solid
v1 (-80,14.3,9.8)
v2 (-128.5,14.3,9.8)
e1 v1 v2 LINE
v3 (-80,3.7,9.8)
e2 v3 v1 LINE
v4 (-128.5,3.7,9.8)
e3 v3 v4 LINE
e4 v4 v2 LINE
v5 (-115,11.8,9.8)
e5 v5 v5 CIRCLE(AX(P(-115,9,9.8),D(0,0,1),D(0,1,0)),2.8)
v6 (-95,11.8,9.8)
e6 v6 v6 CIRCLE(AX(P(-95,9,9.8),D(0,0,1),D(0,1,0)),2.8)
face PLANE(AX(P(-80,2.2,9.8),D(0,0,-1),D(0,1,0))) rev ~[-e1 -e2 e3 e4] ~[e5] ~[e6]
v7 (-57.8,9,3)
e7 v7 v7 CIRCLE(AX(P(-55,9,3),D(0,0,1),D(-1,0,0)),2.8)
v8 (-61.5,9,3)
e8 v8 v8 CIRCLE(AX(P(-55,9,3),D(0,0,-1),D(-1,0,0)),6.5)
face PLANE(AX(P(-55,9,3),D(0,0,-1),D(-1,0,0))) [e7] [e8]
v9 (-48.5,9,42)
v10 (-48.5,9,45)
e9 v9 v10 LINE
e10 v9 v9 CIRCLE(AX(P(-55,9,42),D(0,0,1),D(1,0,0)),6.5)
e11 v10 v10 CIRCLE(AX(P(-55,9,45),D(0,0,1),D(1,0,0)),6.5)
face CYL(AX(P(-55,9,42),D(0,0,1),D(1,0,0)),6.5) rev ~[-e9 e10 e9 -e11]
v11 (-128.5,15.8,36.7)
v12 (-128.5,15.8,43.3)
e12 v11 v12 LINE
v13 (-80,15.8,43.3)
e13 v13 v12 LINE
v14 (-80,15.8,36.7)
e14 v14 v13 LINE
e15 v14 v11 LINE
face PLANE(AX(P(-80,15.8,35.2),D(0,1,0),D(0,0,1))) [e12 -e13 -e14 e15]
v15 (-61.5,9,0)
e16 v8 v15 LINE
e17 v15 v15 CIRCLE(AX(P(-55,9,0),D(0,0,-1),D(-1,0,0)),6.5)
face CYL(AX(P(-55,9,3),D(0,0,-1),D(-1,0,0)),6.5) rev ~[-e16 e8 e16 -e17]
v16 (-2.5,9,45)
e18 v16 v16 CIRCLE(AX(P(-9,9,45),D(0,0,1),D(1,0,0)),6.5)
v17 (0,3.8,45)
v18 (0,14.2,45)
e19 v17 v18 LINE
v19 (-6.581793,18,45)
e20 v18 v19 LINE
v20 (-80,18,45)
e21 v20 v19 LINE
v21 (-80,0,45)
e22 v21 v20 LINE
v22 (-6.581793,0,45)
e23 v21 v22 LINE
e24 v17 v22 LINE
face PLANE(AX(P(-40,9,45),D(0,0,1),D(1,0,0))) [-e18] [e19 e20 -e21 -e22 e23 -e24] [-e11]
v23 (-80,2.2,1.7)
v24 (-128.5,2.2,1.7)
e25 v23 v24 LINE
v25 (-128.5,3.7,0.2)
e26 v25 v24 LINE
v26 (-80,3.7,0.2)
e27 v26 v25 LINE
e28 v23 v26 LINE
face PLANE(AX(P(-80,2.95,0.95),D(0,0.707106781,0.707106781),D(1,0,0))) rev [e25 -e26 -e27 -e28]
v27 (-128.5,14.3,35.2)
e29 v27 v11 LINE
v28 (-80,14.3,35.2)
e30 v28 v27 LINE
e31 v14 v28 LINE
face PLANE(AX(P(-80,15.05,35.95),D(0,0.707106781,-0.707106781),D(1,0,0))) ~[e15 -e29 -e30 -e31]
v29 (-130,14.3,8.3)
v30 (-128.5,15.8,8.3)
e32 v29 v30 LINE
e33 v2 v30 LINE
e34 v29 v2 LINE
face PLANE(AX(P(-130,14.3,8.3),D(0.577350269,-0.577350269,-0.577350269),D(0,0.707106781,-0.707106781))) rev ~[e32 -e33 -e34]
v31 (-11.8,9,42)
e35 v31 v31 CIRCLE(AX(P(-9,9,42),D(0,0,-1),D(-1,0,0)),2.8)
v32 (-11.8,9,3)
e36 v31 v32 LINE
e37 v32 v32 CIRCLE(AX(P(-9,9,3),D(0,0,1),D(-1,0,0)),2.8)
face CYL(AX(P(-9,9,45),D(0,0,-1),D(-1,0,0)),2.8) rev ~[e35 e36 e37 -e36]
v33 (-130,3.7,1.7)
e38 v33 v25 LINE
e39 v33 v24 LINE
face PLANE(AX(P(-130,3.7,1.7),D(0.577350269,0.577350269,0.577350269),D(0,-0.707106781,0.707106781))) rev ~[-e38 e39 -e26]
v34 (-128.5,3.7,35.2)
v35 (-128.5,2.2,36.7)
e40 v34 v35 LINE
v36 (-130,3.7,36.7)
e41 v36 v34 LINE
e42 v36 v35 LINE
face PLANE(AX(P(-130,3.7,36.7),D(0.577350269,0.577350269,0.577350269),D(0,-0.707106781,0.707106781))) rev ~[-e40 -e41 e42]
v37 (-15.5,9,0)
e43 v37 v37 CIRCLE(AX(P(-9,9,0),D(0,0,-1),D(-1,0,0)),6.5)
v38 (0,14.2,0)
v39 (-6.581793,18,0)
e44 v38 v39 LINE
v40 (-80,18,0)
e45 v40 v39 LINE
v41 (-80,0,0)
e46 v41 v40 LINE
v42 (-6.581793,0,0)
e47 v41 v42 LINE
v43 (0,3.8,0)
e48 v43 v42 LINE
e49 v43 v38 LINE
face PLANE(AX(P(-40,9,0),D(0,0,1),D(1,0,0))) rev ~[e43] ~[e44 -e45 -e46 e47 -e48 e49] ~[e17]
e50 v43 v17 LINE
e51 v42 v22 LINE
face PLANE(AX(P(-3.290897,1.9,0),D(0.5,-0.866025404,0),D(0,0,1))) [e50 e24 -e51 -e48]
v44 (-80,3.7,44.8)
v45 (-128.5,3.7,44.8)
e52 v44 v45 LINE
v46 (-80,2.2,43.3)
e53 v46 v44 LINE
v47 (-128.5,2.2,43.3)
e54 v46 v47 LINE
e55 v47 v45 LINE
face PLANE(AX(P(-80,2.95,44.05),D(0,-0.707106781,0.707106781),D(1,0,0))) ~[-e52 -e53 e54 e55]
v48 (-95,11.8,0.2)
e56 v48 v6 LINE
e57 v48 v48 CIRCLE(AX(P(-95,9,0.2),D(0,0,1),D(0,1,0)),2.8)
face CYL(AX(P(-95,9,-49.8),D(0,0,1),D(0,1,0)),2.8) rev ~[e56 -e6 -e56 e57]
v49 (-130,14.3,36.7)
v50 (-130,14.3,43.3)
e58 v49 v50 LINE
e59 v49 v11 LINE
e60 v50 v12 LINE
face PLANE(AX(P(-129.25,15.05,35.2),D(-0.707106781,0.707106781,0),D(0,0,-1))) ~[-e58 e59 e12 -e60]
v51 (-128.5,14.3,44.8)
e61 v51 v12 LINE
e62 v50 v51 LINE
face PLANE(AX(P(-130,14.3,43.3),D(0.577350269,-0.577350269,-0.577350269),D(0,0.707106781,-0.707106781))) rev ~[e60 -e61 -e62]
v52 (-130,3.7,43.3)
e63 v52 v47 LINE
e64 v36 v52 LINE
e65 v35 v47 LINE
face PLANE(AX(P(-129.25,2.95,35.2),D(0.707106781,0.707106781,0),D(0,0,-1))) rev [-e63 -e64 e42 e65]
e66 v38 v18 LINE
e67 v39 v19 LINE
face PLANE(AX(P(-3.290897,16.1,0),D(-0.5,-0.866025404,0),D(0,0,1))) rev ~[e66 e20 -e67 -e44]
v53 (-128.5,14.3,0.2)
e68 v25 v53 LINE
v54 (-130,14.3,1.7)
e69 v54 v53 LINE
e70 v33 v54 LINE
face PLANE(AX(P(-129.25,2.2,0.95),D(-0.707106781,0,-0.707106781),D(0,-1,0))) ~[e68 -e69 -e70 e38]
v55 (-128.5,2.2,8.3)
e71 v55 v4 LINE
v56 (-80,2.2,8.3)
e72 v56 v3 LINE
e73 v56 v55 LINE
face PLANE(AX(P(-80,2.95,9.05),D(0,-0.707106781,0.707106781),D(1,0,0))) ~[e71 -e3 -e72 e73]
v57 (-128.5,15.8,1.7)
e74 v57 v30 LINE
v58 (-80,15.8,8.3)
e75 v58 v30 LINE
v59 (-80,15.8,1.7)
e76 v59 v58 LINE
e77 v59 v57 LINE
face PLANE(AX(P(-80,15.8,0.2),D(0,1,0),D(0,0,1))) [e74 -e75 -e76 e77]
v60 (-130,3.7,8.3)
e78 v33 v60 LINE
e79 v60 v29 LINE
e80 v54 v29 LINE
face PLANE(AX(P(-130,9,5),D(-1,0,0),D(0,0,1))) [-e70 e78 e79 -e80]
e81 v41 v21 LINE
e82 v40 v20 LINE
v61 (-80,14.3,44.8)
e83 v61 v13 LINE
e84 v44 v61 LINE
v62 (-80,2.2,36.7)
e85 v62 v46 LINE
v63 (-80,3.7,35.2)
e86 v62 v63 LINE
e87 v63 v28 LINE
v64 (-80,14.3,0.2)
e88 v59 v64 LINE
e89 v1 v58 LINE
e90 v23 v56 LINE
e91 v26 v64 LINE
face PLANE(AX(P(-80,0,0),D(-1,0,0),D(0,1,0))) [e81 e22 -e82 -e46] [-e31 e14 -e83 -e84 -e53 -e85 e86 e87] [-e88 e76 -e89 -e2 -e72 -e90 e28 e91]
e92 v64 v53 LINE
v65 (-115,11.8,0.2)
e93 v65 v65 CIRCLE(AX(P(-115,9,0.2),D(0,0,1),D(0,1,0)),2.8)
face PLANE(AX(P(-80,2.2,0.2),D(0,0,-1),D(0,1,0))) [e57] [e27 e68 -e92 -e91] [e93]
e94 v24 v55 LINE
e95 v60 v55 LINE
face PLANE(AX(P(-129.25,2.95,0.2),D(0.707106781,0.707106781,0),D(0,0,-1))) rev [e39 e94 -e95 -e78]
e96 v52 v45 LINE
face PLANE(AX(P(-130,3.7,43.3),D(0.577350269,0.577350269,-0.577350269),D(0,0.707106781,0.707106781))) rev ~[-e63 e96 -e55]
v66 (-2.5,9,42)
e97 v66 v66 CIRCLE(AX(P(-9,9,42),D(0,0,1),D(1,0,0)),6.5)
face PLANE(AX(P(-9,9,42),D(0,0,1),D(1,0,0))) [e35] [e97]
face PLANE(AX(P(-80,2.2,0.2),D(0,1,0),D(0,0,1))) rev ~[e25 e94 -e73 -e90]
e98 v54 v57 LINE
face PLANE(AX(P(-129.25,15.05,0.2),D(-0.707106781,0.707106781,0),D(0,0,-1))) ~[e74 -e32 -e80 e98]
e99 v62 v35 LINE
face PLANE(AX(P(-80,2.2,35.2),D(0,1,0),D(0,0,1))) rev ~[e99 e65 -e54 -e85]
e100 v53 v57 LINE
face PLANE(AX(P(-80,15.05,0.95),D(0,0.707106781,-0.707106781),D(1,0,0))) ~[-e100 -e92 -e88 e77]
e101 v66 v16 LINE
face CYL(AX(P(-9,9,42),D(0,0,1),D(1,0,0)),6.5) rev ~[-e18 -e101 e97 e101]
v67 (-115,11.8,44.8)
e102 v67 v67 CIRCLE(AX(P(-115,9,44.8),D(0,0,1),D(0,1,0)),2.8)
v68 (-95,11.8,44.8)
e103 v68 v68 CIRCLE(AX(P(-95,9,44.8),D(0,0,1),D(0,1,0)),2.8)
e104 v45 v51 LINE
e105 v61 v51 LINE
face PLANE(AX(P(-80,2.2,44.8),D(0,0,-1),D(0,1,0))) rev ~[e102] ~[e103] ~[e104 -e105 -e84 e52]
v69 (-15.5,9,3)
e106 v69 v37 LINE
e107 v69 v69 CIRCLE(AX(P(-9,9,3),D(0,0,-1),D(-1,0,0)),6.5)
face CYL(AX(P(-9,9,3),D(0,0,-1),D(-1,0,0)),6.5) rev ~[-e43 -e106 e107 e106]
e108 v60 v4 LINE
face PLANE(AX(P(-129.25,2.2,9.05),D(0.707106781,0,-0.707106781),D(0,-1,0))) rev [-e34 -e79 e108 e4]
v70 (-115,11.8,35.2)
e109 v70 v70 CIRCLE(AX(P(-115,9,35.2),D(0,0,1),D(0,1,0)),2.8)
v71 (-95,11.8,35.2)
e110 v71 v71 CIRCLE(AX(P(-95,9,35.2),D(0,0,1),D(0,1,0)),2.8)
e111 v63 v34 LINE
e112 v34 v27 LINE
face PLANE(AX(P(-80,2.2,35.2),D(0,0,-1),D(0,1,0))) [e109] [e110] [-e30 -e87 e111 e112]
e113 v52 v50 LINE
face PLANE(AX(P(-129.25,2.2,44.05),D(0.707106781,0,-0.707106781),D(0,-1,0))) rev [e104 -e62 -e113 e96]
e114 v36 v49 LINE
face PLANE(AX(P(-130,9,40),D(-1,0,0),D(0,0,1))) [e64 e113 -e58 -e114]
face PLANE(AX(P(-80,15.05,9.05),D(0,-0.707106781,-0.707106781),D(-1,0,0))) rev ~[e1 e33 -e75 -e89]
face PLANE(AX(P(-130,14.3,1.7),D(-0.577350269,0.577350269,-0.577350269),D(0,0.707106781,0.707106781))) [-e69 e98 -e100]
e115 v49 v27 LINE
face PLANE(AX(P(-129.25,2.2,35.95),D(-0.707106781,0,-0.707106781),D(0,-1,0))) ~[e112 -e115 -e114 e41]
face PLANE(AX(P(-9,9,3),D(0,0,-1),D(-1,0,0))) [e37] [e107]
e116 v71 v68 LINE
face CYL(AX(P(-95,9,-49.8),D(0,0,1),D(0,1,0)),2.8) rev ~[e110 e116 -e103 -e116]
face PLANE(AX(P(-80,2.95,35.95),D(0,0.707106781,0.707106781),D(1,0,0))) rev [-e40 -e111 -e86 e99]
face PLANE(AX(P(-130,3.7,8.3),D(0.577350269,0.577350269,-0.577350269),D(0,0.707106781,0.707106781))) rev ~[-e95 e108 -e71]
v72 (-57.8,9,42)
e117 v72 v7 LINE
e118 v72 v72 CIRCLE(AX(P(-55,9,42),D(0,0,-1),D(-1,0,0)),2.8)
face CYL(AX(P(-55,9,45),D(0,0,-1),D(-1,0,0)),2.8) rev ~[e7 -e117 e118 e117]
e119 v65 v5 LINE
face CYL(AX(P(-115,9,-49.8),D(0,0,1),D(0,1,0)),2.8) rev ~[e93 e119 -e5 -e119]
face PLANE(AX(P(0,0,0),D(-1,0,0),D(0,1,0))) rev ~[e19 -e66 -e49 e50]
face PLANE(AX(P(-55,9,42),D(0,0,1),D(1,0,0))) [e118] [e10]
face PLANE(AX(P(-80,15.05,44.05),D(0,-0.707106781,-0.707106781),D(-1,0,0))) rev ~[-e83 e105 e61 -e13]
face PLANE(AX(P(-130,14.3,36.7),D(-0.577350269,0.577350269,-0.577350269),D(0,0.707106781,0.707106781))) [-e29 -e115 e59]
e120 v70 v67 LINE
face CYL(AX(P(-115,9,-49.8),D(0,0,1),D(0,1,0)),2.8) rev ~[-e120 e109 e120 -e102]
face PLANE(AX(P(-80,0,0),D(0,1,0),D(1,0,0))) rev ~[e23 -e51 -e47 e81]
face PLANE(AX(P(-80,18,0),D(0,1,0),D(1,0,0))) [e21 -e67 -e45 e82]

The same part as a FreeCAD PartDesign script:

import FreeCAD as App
import Part
import Sketcher
from FreeCAD import Vector


def edges_at(feature, points):
    """Names of the edges that pass closest to the given points."""
    edges = feature.Shape.Edges
    near = lambda p: min(range(len(edges)), key=lambda i: edges[i].distToShape(Part.Vertex(*p))[0])
    return sorted({f"Edge{near(p) + 1}" for p in points})


def add_polygon(sketch, points):
    """Adds a closed chain of lines whose ends are joined by coincident constraints."""
    first, n = sketch.GeometryCount, len(points)
    for a, b in zip(points, points[1:] + points[:1]):
        sketch.addGeometry(Part.LineSegment(App.Vector(*a, 0), App.Vector(*b, 0)), False)
    for i in range(n):
        sketch.addConstraint(Sketcher.Constraint("Coincident", first + i, 2, first + (i + 1) % n, 1))

doc = App.newDocument("Part")
body = doc.addObject("PartDesign::Body", "Body")

# Sketch on XY plane
sketch1 = body.newObject("Sketcher::SketchObject", "Sketch")
sketch1.AttachmentSupport = (doc.getObject("XY_Plane"), [""])
sketch1.MapMode = "FlatFace"
add_polygon(sketch1, [(-80, 18), (-80, 0), (0, 0), (0, 18)])  # lines 0-3
sketch1.addConstraint(Sketcher.Constraint("Vertical", 0))
sketch1.addConstraint(Sketcher.Constraint("Horizontal", 1))
sketch1.addConstraint(Sketcher.Constraint("Vertical", 2))
sketch1.addConstraint(Sketcher.Constraint("Horizontal", 3))
sketch1.addConstraint(Sketcher.Constraint("Coincident", 1, 2, -1, 1))
sketch1.addConstraint(Sketcher.Constraint("DistanceX", 1, 1, 1, 2, 80.0))
sketch1.addConstraint(Sketcher.Constraint("DistanceY", 0, 2, 0, 1, 18.0))
pad1 = body.newObject("PartDesign::Pad", "Pad")
pad1.Profile = sketch1
pad1.Length = 45
doc.recompute()

chamfer = body.newObject("PartDesign::Chamfer", "Chamfer")
chamfer.Base = (pad1, edges_at(pad1, [(0, 18, 22.5)]))
chamfer.ChamferType = "Two distances"
chamfer.Size = 3.8
chamfer.Size2 = 6.581793
doc.recompute()

chamfer2 = body.newObject("PartDesign::Chamfer", "Chamfer001")
chamfer2.Base = (chamfer, edges_at(chamfer, [(0, 0, 22.5)]))
chamfer2.ChamferType = "Two distances"
chamfer2.Size = 3.8
chamfer2.Size2 = 6.581793

# Sketch on YZ plane
sketch2 = body.newObject("Sketcher::SketchObject", "Sketch001")
sketch2.AttachmentSupport = (doc.getObject("YZ_Plane"), [""])
sketch2.MapMode = "FlatFace"
sketch2.AttachmentOffset = App.Placement(Vector(0, 0, -80), App.Rotation())
add_polygon(sketch2, [(16, 0), (2, 0), (2, 10), (16, 10)])  # lines 0-3
add_polygon(sketch2, [(16, 35), (2, 35), (2, 45), (16, 45)])  # lines 4-7
sketch2.addConstraint(Sketcher.Constraint("Horizontal", 0))
sketch2.addConstraint(Sketcher.Constraint("Vertical", 1))
sketch2.addConstraint(Sketcher.Constraint("Horizontal", 2))
sketch2.addConstraint(Sketcher.Constraint("Vertical", 3))
sketch2.addConstraint(Sketcher.Constraint("Horizontal", 4))
sketch2.addConstraint(Sketcher.Constraint("Vertical", 5))
sketch2.addConstraint(Sketcher.Constraint("Horizontal", 6))
sketch2.addConstraint(Sketcher.Constraint("Vertical", 7))
sketch2.addConstraint(Sketcher.Constraint("Vertical", 1, 2, 4, 2))
sketch2.addConstraint(Sketcher.Constraint("Vertical", 3, 2, 6, 2))
sketch2.addConstraint(Sketcher.Constraint("Equal", 3, 5))
sketch2.addConstraint(Sketcher.Constraint("DistanceX", 0, 2, 0, 1, 13.6))
sketch2.addConstraint(Sketcher.Constraint("DistanceY", 1, 1, 1, 2, 9.6))
sketch2.addConstraint(Sketcher.Constraint("DistanceY", 0, 2, 4, 2, 35.0))
sketch2.addConstraint(Sketcher.Constraint("DistanceX", -1, 1, 0, 2, 2.2))
sketch2.addConstraint(Sketcher.Constraint("DistanceY", -1, 1, 0, 2, 0.2))
pad2 = body.newObject("PartDesign::Pad", "Pad001")
pad2.Profile = sketch2
pad2.Length = 50
pad2.Reversed = True
doc.recompute()

chamfer3 = body.newObject("PartDesign::Chamfer", "Chamfer002")
chamfer3.Base = (pad2, edges_at(pad2, [
    (-105, 15.8, 0.2),
    (-105, 2.2, 0.2),
    (-105, 2.2, 9.8),
    (-105, 15.8, 9.8),
    (-130, 9, 0.2),
    (-130, 2.2, 5),
    (-130, 9, 9.8),
    (-130, 15.8, 5),
    (-105, 15.8, 35.2),
    (-105, 2.2, 35.2),
    (-105, 2.2, 44.8),
    (-105, 15.8, 44.8),
    (-130, 9, 35.2),
    (-130, 2.2, 40),
    (-130, 9, 44.8),
    (-130, 15.8, 40),
]))
chamfer3.Size = 1.5

# Sketch on XY plane
sketch3 = body.newObject("Sketcher::SketchObject", "Sketch002")
sketch3.AttachmentSupport = (doc.getObject("XY_Plane"), [""])
sketch3.MapMode = "FlatFace"
sketch3.AttachmentOffset = App.Placement(Vector(0, 0, 0.2), App.Rotation())
sketch3.addGeometry(Part.Circle(Vector(-115, 9, 0), Vector(0, 0, 1), 2.8), False)
sketch3.addGeometry(Part.Circle(Vector(-95, 9, 0), Vector(0, 0, 1), 2.8), False)
sketch3.addConstraint(Sketcher.Constraint("Equal", 0, 1))
sketch3.addConstraint(Sketcher.Constraint("Horizontal", 0, 3, 1, 3))
sketch3.addConstraint(Sketcher.Constraint("Diameter", 0, 5.6))
sketch3.addConstraint(Sketcher.Constraint("DistanceX", 0, 3, -1, 1, 115.0))
sketch3.addConstraint(Sketcher.Constraint("DistanceY", -1, 1, 0, 3, 9.0))
sketch3.addConstraint(Sketcher.Constraint("DistanceX", 1, 3, -1, 1, 95.0))
doc.recompute()
hole = body.newObject("PartDesign::Hole", "Hole")
hole.Profile = sketch3
hole.ThreadType = "None"
hole.Diameter = 5.6
hole.DepthType = "Dimension"
hole.Depth = 50
hole.DrillPoint = "Angled"
hole.DrillPointAngle = 118
hole.Reversed = True

# Sketch on XY plane
sketch4 = body.newObject("Sketcher::SketchObject", "Sketch003")
sketch4.AttachmentSupport = (doc.getObject("XY_Plane"), [""])
sketch4.MapMode = "FlatFace"
sketch4.AttachmentOffset = App.Placement(Vector(0, 0, 45), App.Rotation())
sketch4.addGeometry(Part.Circle(Vector(-9, 9, 0), Vector(0, 0, 1), 2.8), False)
sketch4.addGeometry(Part.Circle(Vector(-55, 9, 0), Vector(0, 0, 1), 2.8), False)
sketch4.addConstraint(Sketcher.Constraint("Equal", 0, 1))
sketch4.addConstraint(Sketcher.Constraint("Horizontal", 0, 3, 1, 3))
sketch4.addConstraint(Sketcher.Constraint("Diameter", 0, 5.6))
sketch4.addConstraint(Sketcher.Constraint("DistanceX", 0, 3, -1, 1, 9.0))
sketch4.addConstraint(Sketcher.Constraint("DistanceY", -1, 1, 0, 3, 9.0))
sketch4.addConstraint(Sketcher.Constraint("DistanceX", 1, 3, -1, 1, 55.0))
doc.recompute()
hole2 = body.newObject("PartDesign::Hole", "Hole001")
hole2.Profile = sketch4
hole2.ThreadType = "None"
hole2.Diameter = 5.6
hole2.DepthType = "Dimension"
hole2.Depth = 50
hole2.DrillPoint = "Angled"
hole2.DrillPointAngle = 118
hole2.HoleCutType = "Counterbore"
hole2.HoleCutDiameter = 13
hole2.HoleCutDepth = 3

# Sketch on XY plane
sketch5 = body.newObject("Sketcher::SketchObject", "Sketch004")
sketch5.AttachmentSupport = (doc.getObject("XY_Plane"), [""])
sketch5.MapMode = "FlatFace"
sketch5.addGeometry(Part.Circle(Vector(-9, 9, 0), Vector(0, 0, 1), 2.8), False)
sketch5.addGeometry(Part.Circle(Vector(-55, 9, 0), Vector(0, 0, 1), 2.8), False)
sketch5.addConstraint(Sketcher.Constraint("Equal", 0, 1))
sketch5.addConstraint(Sketcher.Constraint("Horizontal", 0, 3, 1, 3))
sketch5.addConstraint(Sketcher.Constraint("Diameter", 0, 5.6))
sketch5.addConstraint(Sketcher.Constraint("DistanceX", 0, 3, -1, 1, 9.0))
sketch5.addConstraint(Sketcher.Constraint("DistanceY", -1, 1, 0, 3, 9.0))
sketch5.addConstraint(Sketcher.Constraint("DistanceX", 1, 3, -1, 1, 55.0))
doc.recompute()
hole3 = body.newObject("PartDesign::Hole", "Hole002")
hole3.Profile = sketch5
hole3.ThreadType = "None"
hole3.Diameter = 5.6
hole3.DepthType = "Dimension"
hole3.Depth = 50
hole3.DrillPoint = "Angled"
hole3.DrillPointAngle = 118
hole3.HoleCutType = "Counterbore"
hole3.HoleCutDiameter = 13
hole3.HoleCutDepth = 3
hole3.Reversed = True

doc.recompute()
